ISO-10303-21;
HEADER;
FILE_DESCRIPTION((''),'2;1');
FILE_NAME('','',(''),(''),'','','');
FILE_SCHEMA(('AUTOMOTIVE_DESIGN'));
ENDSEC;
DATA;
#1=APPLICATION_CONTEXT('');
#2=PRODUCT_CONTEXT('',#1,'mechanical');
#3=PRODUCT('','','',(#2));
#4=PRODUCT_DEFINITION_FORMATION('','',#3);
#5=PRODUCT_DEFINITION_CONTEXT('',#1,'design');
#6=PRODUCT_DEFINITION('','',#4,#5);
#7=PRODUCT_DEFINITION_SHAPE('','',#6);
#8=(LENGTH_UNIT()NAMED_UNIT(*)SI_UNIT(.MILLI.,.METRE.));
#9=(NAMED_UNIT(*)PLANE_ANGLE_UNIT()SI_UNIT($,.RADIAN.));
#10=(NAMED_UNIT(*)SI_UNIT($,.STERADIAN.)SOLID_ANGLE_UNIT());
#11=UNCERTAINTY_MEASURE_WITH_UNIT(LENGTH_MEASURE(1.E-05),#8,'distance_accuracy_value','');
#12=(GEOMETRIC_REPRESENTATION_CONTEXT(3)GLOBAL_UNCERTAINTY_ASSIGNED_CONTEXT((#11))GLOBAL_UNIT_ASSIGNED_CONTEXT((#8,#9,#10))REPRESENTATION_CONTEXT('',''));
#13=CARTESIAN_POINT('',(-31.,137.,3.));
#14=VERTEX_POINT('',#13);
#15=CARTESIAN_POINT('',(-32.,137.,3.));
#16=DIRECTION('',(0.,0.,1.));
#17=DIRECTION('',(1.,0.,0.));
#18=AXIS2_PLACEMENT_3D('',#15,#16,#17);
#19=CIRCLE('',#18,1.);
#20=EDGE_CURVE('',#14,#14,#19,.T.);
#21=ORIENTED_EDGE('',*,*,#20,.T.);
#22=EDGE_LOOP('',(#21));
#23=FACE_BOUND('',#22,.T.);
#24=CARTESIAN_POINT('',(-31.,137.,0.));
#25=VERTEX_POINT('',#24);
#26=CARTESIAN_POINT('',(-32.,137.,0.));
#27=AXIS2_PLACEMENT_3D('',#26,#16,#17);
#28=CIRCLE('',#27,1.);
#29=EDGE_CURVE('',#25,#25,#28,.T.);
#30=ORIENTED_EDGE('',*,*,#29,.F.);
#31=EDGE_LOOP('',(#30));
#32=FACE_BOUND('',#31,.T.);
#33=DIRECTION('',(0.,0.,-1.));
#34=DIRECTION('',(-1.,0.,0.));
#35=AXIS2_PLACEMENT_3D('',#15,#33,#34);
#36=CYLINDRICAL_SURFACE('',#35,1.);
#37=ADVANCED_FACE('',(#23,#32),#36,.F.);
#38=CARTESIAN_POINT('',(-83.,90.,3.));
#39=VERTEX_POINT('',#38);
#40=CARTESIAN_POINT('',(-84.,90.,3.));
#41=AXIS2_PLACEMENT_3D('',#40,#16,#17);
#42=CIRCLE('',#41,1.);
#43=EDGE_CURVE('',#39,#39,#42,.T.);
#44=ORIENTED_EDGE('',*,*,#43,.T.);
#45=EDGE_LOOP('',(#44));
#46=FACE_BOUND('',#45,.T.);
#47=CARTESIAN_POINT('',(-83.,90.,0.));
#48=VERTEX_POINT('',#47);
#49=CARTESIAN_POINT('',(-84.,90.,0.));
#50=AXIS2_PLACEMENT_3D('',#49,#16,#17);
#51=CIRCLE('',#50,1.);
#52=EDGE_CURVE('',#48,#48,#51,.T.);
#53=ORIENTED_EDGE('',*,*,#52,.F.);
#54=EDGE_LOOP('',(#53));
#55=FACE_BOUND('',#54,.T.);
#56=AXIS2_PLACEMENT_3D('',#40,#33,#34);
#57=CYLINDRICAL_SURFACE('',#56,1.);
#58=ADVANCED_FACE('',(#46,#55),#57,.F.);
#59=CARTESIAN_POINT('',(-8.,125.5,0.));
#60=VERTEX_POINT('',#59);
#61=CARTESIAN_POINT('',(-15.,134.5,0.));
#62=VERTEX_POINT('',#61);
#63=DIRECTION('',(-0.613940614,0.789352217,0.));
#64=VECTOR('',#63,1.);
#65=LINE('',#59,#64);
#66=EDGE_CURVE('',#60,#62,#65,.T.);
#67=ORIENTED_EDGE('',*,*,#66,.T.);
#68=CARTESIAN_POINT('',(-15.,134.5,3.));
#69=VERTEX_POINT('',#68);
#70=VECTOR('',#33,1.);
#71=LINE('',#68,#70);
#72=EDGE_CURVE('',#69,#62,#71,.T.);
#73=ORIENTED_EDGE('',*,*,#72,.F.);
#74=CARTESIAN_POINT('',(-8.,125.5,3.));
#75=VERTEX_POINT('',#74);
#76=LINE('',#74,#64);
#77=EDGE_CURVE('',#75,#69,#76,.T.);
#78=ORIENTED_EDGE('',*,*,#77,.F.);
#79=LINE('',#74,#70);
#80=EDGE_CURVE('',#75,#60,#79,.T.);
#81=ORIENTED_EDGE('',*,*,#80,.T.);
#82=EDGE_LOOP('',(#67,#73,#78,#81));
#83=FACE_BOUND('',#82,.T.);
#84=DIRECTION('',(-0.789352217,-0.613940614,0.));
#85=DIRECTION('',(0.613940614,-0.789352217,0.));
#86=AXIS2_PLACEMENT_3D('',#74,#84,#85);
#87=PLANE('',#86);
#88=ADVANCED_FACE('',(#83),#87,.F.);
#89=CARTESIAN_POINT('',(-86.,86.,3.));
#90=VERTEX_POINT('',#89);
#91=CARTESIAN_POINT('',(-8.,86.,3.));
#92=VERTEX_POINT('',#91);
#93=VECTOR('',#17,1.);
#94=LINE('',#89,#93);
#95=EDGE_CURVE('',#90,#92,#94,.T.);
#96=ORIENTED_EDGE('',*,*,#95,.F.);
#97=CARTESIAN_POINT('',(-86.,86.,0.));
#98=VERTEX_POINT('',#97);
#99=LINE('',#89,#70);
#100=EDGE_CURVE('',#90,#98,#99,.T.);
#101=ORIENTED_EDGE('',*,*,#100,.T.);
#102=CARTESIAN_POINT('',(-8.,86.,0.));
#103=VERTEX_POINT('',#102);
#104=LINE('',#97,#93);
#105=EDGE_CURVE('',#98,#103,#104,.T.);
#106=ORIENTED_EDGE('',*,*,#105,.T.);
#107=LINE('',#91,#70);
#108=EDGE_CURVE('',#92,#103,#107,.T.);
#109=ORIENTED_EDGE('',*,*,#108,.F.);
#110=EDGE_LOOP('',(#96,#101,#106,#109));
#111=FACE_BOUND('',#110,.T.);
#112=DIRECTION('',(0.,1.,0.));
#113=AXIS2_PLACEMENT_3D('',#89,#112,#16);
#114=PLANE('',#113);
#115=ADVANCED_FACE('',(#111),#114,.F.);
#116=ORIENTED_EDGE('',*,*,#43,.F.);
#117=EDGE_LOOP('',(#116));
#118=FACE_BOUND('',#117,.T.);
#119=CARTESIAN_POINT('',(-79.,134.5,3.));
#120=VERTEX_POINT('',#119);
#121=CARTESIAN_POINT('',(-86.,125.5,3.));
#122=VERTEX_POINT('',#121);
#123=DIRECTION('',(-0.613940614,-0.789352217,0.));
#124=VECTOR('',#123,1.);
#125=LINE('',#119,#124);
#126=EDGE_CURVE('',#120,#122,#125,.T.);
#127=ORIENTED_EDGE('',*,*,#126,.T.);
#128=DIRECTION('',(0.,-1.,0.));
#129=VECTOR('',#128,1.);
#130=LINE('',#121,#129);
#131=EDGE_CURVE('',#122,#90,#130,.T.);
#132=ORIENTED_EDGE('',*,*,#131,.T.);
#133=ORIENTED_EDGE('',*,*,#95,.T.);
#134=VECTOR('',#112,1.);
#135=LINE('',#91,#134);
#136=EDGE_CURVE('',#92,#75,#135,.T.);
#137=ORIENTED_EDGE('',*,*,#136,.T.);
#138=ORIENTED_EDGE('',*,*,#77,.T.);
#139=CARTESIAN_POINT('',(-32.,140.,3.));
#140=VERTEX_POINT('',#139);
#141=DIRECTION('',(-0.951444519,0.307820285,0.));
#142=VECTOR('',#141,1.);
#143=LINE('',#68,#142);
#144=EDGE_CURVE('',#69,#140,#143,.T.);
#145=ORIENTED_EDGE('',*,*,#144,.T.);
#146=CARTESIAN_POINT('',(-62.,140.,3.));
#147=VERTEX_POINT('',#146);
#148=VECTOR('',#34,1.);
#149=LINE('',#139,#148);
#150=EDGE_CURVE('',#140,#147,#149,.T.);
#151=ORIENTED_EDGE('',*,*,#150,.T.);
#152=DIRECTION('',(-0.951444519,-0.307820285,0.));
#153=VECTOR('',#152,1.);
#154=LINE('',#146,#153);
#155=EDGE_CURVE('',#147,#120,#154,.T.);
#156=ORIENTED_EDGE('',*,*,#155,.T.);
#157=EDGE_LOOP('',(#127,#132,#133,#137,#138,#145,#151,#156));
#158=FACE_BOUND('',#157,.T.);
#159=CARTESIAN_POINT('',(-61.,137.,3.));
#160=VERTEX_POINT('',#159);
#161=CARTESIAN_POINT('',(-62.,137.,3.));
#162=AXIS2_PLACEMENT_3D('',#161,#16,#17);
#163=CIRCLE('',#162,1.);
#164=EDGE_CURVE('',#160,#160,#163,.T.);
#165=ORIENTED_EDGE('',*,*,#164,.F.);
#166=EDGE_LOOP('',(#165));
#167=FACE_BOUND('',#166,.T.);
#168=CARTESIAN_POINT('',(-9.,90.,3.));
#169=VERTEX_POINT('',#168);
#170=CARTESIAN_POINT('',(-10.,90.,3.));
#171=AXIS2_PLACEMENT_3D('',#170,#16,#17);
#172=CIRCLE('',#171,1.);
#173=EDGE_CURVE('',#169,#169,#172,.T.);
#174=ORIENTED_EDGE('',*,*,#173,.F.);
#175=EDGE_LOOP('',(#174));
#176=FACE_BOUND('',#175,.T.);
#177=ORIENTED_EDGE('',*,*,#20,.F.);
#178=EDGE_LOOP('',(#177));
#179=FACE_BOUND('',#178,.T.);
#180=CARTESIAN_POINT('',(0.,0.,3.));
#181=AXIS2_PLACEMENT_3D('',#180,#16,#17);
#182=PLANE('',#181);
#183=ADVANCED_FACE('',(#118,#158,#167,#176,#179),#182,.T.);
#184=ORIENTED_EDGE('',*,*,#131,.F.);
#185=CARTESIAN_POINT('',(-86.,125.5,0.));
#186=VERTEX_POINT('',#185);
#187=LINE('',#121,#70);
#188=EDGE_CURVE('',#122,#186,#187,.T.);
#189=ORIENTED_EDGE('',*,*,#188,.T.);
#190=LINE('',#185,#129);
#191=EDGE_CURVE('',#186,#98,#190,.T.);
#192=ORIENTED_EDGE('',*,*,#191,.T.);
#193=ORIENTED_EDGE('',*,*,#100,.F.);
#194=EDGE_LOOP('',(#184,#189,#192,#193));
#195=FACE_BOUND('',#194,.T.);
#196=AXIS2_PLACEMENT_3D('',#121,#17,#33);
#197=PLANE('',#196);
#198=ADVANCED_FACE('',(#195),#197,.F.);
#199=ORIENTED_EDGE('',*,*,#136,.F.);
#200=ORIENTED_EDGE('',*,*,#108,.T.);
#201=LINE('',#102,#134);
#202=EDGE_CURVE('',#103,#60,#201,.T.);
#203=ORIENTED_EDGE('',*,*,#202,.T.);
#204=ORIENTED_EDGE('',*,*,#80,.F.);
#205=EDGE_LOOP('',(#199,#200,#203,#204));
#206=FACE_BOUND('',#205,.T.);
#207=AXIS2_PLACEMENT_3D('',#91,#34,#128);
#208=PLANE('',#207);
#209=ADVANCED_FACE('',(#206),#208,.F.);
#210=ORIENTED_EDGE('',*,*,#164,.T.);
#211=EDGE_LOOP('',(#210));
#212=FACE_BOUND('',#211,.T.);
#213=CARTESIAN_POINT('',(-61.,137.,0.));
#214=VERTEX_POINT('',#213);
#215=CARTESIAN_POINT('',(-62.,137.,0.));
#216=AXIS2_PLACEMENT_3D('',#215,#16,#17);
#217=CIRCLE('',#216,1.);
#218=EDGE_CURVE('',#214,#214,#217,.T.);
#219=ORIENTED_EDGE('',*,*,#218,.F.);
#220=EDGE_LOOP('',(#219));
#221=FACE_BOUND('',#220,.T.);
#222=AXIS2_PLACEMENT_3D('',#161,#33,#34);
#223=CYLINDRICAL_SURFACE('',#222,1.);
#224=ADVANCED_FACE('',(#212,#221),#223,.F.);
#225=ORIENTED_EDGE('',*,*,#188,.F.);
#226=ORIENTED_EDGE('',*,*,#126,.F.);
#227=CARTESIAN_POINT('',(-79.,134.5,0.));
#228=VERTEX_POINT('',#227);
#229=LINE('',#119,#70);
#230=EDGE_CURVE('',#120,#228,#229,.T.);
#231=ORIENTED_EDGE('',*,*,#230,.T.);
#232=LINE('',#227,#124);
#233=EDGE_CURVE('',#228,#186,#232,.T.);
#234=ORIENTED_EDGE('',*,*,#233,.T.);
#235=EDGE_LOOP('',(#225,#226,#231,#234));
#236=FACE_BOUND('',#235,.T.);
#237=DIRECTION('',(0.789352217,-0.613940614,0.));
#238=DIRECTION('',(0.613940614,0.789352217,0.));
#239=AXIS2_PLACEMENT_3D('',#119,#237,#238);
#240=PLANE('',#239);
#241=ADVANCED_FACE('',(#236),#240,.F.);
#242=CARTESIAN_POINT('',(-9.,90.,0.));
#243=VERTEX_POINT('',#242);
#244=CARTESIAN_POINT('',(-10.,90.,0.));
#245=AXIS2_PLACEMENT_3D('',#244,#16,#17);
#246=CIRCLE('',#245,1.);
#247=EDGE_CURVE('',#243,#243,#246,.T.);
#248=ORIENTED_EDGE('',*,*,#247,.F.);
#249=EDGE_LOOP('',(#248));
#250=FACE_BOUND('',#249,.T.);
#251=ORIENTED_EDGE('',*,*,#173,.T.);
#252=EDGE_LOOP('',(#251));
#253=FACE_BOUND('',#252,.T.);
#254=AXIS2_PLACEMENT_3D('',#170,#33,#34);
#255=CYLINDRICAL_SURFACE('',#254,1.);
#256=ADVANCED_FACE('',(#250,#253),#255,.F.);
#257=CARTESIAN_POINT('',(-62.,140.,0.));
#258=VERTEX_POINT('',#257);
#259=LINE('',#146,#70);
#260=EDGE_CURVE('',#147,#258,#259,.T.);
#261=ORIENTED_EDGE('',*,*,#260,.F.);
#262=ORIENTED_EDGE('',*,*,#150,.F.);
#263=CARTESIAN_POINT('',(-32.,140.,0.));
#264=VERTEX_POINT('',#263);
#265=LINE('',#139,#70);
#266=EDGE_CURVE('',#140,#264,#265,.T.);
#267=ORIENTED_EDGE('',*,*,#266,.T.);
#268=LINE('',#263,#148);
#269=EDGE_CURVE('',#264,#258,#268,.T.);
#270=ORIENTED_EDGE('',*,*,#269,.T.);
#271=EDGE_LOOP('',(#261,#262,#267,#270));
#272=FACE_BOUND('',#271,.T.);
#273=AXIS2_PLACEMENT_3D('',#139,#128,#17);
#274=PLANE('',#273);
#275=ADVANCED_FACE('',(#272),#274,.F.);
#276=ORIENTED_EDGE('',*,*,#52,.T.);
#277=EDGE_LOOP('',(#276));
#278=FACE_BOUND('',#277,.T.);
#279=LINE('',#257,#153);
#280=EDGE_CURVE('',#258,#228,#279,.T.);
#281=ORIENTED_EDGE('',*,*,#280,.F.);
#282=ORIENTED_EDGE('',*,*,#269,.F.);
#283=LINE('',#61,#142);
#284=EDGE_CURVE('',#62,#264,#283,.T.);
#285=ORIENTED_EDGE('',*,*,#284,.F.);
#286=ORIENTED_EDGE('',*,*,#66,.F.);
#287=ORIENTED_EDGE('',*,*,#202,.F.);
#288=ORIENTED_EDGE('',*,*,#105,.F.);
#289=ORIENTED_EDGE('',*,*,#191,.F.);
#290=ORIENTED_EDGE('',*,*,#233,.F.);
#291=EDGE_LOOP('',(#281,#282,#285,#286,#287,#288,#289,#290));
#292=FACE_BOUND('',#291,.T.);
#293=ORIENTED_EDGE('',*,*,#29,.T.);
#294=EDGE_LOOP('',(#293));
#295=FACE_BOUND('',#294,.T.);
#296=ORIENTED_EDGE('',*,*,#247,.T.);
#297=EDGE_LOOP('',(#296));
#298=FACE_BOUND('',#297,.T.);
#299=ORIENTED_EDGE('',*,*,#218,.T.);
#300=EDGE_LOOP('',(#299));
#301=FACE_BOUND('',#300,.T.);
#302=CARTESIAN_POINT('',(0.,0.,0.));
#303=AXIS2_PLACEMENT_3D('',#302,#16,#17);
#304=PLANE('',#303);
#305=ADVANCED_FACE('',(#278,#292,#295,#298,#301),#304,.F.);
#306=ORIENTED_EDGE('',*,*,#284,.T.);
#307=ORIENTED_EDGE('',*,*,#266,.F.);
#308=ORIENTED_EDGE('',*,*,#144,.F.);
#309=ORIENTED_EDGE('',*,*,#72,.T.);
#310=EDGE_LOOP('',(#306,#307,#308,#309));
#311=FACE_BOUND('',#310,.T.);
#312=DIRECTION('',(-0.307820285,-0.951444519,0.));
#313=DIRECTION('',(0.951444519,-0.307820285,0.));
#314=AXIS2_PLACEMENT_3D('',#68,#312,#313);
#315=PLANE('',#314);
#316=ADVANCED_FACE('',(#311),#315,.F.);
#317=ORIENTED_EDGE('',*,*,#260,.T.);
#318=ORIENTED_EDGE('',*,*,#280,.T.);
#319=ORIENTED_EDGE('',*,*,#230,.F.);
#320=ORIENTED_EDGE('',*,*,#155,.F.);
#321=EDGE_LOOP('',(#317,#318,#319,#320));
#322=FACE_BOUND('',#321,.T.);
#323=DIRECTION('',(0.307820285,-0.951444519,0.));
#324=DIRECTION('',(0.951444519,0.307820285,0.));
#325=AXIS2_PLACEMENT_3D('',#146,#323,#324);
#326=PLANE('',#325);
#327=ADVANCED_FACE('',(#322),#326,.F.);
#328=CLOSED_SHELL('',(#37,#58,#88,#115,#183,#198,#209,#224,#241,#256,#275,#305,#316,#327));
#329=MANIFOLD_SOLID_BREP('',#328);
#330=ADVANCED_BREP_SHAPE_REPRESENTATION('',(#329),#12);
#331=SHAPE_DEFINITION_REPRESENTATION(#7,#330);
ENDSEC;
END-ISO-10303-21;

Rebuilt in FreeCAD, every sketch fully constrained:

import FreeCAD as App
import Part
import Sketcher
Q = App.Units.Quantity


def add_polygon(sketch, points):
    """Adds a closed chain of lines whose ends are joined by coincident constraints."""
    first, n = sketch.GeometryCount, len(points)
    for a, b in zip(points, points[1:] + points[:1]):
        sketch.addGeometry(Part.LineSegment(App.Vector(*a, 0), App.Vector(*b, 0)), False)
    for i in range(n):
        sketch.addConstraint(Sketcher.Constraint("Coincident", first + i, 2, first + (i + 1) % n, 1))

doc = App.newDocument("Part")
params = doc.addObject("Spreadsheet::Sheet", "Params")
for row, (alias, value) in enumerate([
    ("sketch1_diameter", "2 mm"),
    ("sketch1_width", "30 mm"),
    ("sketch1_width2", "78 mm"),
    ("sketch1_height", "39.5 mm"),
    ("pad1_length", "3 mm"),
], start=1):
    params.set(f"A{row}", alias)
    params.set(f"B{row}", "=" + value)
    params.setAlias(f"B{row}", alias)

body = doc.addObject("PartDesign::Body", "Body")

sketch1 = doc.addObject("Sketcher::SketchObject", "Sketch")
body.addObject(sketch1)
sketch1.AttachmentSupport = (doc.XY_Plane, [""])
sketch1.MapMode = "FlatFace"
add_polygon(sketch1, [(-8, 125.5), (-15, 134.5), (-32, 140), (-62, 140), (-79, 134.5), (-86, 125.5), (-86, 86), (-8, 86)])
sketch1.addGeometry(Part.Circle(App.Vector(-84, 90, 0), App.Vector(0, 0, 1), 1), False)
sketch1.addGeometry(Part.Circle(App.Vector(-10, 90, 0), App.Vector(0, 0, 1), 1), False)
sketch1.addGeometry(Part.Circle(App.Vector(-62, 137, 0), App.Vector(0, 0, 1), 1), False)
sketch1.addGeometry(Part.Circle(App.Vector(-32, 137, 0), App.Vector(0, 0, 1), 1), False)
sketch1.addConstraint([
    Sketcher.Constraint("Horizontal", 2),
    Sketcher.Constraint("Vertical", 5),
    Sketcher.Constraint("Horizontal", 6),
    Sketcher.Constraint("Vertical", 7),
    Sketcher.Constraint("Equal", 8, 9),
    Sketcher.Constraint("Equal", 9, 10),
    Sketcher.Constraint("Equal", 10, 11),
    Sketcher.Constraint("Horizontal", 8, 3, 9, 3),
    Sketcher.Constraint("Horizontal", 10, 3, 11, 3),
    Sketcher.Constraint("Horizontal", 0, 2, 3, 2),
    Sketcher.Constraint("Horizontal", 4, 2, 7, 2),
    Sketcher.Constraint("Vertical", 11, 3, 1, 2),
    Sketcher.Constraint("Vertical", 10, 3, 2, 2),
    Sketcher.Constraint("Equal", 1, 3),
    Sketcher.Constraint("Equal", 0, 4),
    Sketcher.Constraint("Diameter", 8, Q("2 mm")),
    Sketcher.Constraint("DistanceX", 2, 2, 2, 1, Q("30 mm")),
    Sketcher.Constraint("DistanceX", 6, 1, 6, 2, Q("78 mm")),
    Sketcher.Constraint("DistanceY", 5, 2, 5, 1, Q("39.5 mm")),
    Sketcher.Constraint("DistanceX", 8, 3, -1, 1, Q("84 mm")),
    Sketcher.Constraint("DistanceY", -1, 1, 8, 3, Q("90 mm")),
    Sketcher.Constraint("DistanceX", 9, 3, -1, 1, Q("10 mm")),
    Sketcher.Constraint("DistanceX", 10, 3, -1, 1, Q("62 mm")),
    Sketcher.Constraint("DistanceY", -1, 1, 10, 3, Q("137 mm")),
    Sketcher.Constraint("DistanceX", 0, 2, -1, 1, Q("15 mm")),
    Sketcher.Constraint("DistanceY", -1, 1, 1, 2, Q("140 mm")),
    Sketcher.Constraint("DistanceY", -1, 1, 5, 2, Q("86 mm")),
    Sketcher.Constraint("DistanceY", 4, 2, 3, 2, Q("9 mm")),
])
sketch1.setExpression("Constraints[23]", "Params.sketch1_diameter")
sketch1.setExpression("Constraints[24]", "Params.sketch1_width")
sketch1.setExpression("Constraints[25]", "Params.sketch1_width2")
sketch1.setExpression("Constraints[26]", "Params.sketch1_height")
pad1 = doc.addObject("PartDesign::Pad", "Pad")
body.addObject(pad1)
pad1.Profile = sketch1
pad1.setExpression("Length", "Params.pad1_length")

doc.recompute()
